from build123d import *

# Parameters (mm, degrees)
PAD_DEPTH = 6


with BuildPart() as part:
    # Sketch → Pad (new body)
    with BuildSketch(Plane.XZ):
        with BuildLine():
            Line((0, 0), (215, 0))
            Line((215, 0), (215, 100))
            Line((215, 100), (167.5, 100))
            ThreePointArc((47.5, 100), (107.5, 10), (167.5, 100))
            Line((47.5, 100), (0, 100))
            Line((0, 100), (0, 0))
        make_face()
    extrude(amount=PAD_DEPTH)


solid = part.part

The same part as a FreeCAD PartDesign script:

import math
import FreeCAD as App
import Part
import Sketcher

doc = App.newDocument("Part")
body = doc.addObject("PartDesign::Body", "Body")

# Sketch on XZ plane
sketch1 = doc.addObject("Sketcher::SketchObject", "Sketch")
body.addObject(sketch1)
sketch1.AttachmentSupport = (doc.XZ_Plane, [""])
sketch1.MapMode = "FlatFace"
sketch1.addGeometry([
    Part.LineSegment(App.Vector(0, 0, 0), App.Vector(215, 0, 0)),  # 0
    Part.LineSegment(App.Vector(215, 0, 0), App.Vector(215, 100, 0)),  # 1
    Part.LineSegment(App.Vector(215, 100, 0), App.Vector(168, 100, 0)),  # 2
    Part.ArcOfCircle(Part.Circle(App.Vector(108, 75, 0), App.Vector(0, 0, 1), 65), math.radians(157), math.radians(383)),  # 3
    Part.LineSegment(App.Vector(48, 100, 0), App.Vector(0, 100, 0)),  # 4
    Part.LineSegment(App.Vector(0, 100, 0), App.Vector(0, 0, 0)),  # 5
], False)
sketch1.addConstraint([
    Sketcher.Constraint("Coincident", 0, 2, 1, 1),
    Sketcher.Constraint("Coincident", 1, 2, 2, 1),
    Sketcher.Constraint("Coincident", 2, 2, 3, 2),
    Sketcher.Constraint("Coincident", 3, 1, 4, 1),
    Sketcher.Constraint("Coincident", 4, 2, 5, 1),
    Sketcher.Constraint("Coincident", 5, 2, 0, 1),
    Sketcher.Constraint("Horizontal", 0),
    Sketcher.Constraint("Vertical", 1),
    Sketcher.Constraint("Horizontal", 2),
    Sketcher.Constraint("Horizontal", 4),
    Sketcher.Constraint("Vertical", 5),
    Sketcher.Constraint("Coincident", 5, 2, -1, 1),
    Sketcher.Constraint("Horizontal", 2, 2, 3, 1),
    Sketcher.Constraint("Equal", 2, 4),
    Sketcher.Constraint("Radius", 3, 65.0),
    Sketcher.Constraint("DistanceX", 0, 1, 0, 2, 215.0),
    Sketcher.Constraint("DistanceY", 1, 1, 1, 2, 100.0),
    Sketcher.Constraint("DistanceX", 2, 2, 2, 1, 47.5),
])
pad1 = doc.addObject("PartDesign::Pad", "Pad")
body.addObject(pad1)
pad1.Profile = sketch1
pad1.Length = 6

doc.recompute()
